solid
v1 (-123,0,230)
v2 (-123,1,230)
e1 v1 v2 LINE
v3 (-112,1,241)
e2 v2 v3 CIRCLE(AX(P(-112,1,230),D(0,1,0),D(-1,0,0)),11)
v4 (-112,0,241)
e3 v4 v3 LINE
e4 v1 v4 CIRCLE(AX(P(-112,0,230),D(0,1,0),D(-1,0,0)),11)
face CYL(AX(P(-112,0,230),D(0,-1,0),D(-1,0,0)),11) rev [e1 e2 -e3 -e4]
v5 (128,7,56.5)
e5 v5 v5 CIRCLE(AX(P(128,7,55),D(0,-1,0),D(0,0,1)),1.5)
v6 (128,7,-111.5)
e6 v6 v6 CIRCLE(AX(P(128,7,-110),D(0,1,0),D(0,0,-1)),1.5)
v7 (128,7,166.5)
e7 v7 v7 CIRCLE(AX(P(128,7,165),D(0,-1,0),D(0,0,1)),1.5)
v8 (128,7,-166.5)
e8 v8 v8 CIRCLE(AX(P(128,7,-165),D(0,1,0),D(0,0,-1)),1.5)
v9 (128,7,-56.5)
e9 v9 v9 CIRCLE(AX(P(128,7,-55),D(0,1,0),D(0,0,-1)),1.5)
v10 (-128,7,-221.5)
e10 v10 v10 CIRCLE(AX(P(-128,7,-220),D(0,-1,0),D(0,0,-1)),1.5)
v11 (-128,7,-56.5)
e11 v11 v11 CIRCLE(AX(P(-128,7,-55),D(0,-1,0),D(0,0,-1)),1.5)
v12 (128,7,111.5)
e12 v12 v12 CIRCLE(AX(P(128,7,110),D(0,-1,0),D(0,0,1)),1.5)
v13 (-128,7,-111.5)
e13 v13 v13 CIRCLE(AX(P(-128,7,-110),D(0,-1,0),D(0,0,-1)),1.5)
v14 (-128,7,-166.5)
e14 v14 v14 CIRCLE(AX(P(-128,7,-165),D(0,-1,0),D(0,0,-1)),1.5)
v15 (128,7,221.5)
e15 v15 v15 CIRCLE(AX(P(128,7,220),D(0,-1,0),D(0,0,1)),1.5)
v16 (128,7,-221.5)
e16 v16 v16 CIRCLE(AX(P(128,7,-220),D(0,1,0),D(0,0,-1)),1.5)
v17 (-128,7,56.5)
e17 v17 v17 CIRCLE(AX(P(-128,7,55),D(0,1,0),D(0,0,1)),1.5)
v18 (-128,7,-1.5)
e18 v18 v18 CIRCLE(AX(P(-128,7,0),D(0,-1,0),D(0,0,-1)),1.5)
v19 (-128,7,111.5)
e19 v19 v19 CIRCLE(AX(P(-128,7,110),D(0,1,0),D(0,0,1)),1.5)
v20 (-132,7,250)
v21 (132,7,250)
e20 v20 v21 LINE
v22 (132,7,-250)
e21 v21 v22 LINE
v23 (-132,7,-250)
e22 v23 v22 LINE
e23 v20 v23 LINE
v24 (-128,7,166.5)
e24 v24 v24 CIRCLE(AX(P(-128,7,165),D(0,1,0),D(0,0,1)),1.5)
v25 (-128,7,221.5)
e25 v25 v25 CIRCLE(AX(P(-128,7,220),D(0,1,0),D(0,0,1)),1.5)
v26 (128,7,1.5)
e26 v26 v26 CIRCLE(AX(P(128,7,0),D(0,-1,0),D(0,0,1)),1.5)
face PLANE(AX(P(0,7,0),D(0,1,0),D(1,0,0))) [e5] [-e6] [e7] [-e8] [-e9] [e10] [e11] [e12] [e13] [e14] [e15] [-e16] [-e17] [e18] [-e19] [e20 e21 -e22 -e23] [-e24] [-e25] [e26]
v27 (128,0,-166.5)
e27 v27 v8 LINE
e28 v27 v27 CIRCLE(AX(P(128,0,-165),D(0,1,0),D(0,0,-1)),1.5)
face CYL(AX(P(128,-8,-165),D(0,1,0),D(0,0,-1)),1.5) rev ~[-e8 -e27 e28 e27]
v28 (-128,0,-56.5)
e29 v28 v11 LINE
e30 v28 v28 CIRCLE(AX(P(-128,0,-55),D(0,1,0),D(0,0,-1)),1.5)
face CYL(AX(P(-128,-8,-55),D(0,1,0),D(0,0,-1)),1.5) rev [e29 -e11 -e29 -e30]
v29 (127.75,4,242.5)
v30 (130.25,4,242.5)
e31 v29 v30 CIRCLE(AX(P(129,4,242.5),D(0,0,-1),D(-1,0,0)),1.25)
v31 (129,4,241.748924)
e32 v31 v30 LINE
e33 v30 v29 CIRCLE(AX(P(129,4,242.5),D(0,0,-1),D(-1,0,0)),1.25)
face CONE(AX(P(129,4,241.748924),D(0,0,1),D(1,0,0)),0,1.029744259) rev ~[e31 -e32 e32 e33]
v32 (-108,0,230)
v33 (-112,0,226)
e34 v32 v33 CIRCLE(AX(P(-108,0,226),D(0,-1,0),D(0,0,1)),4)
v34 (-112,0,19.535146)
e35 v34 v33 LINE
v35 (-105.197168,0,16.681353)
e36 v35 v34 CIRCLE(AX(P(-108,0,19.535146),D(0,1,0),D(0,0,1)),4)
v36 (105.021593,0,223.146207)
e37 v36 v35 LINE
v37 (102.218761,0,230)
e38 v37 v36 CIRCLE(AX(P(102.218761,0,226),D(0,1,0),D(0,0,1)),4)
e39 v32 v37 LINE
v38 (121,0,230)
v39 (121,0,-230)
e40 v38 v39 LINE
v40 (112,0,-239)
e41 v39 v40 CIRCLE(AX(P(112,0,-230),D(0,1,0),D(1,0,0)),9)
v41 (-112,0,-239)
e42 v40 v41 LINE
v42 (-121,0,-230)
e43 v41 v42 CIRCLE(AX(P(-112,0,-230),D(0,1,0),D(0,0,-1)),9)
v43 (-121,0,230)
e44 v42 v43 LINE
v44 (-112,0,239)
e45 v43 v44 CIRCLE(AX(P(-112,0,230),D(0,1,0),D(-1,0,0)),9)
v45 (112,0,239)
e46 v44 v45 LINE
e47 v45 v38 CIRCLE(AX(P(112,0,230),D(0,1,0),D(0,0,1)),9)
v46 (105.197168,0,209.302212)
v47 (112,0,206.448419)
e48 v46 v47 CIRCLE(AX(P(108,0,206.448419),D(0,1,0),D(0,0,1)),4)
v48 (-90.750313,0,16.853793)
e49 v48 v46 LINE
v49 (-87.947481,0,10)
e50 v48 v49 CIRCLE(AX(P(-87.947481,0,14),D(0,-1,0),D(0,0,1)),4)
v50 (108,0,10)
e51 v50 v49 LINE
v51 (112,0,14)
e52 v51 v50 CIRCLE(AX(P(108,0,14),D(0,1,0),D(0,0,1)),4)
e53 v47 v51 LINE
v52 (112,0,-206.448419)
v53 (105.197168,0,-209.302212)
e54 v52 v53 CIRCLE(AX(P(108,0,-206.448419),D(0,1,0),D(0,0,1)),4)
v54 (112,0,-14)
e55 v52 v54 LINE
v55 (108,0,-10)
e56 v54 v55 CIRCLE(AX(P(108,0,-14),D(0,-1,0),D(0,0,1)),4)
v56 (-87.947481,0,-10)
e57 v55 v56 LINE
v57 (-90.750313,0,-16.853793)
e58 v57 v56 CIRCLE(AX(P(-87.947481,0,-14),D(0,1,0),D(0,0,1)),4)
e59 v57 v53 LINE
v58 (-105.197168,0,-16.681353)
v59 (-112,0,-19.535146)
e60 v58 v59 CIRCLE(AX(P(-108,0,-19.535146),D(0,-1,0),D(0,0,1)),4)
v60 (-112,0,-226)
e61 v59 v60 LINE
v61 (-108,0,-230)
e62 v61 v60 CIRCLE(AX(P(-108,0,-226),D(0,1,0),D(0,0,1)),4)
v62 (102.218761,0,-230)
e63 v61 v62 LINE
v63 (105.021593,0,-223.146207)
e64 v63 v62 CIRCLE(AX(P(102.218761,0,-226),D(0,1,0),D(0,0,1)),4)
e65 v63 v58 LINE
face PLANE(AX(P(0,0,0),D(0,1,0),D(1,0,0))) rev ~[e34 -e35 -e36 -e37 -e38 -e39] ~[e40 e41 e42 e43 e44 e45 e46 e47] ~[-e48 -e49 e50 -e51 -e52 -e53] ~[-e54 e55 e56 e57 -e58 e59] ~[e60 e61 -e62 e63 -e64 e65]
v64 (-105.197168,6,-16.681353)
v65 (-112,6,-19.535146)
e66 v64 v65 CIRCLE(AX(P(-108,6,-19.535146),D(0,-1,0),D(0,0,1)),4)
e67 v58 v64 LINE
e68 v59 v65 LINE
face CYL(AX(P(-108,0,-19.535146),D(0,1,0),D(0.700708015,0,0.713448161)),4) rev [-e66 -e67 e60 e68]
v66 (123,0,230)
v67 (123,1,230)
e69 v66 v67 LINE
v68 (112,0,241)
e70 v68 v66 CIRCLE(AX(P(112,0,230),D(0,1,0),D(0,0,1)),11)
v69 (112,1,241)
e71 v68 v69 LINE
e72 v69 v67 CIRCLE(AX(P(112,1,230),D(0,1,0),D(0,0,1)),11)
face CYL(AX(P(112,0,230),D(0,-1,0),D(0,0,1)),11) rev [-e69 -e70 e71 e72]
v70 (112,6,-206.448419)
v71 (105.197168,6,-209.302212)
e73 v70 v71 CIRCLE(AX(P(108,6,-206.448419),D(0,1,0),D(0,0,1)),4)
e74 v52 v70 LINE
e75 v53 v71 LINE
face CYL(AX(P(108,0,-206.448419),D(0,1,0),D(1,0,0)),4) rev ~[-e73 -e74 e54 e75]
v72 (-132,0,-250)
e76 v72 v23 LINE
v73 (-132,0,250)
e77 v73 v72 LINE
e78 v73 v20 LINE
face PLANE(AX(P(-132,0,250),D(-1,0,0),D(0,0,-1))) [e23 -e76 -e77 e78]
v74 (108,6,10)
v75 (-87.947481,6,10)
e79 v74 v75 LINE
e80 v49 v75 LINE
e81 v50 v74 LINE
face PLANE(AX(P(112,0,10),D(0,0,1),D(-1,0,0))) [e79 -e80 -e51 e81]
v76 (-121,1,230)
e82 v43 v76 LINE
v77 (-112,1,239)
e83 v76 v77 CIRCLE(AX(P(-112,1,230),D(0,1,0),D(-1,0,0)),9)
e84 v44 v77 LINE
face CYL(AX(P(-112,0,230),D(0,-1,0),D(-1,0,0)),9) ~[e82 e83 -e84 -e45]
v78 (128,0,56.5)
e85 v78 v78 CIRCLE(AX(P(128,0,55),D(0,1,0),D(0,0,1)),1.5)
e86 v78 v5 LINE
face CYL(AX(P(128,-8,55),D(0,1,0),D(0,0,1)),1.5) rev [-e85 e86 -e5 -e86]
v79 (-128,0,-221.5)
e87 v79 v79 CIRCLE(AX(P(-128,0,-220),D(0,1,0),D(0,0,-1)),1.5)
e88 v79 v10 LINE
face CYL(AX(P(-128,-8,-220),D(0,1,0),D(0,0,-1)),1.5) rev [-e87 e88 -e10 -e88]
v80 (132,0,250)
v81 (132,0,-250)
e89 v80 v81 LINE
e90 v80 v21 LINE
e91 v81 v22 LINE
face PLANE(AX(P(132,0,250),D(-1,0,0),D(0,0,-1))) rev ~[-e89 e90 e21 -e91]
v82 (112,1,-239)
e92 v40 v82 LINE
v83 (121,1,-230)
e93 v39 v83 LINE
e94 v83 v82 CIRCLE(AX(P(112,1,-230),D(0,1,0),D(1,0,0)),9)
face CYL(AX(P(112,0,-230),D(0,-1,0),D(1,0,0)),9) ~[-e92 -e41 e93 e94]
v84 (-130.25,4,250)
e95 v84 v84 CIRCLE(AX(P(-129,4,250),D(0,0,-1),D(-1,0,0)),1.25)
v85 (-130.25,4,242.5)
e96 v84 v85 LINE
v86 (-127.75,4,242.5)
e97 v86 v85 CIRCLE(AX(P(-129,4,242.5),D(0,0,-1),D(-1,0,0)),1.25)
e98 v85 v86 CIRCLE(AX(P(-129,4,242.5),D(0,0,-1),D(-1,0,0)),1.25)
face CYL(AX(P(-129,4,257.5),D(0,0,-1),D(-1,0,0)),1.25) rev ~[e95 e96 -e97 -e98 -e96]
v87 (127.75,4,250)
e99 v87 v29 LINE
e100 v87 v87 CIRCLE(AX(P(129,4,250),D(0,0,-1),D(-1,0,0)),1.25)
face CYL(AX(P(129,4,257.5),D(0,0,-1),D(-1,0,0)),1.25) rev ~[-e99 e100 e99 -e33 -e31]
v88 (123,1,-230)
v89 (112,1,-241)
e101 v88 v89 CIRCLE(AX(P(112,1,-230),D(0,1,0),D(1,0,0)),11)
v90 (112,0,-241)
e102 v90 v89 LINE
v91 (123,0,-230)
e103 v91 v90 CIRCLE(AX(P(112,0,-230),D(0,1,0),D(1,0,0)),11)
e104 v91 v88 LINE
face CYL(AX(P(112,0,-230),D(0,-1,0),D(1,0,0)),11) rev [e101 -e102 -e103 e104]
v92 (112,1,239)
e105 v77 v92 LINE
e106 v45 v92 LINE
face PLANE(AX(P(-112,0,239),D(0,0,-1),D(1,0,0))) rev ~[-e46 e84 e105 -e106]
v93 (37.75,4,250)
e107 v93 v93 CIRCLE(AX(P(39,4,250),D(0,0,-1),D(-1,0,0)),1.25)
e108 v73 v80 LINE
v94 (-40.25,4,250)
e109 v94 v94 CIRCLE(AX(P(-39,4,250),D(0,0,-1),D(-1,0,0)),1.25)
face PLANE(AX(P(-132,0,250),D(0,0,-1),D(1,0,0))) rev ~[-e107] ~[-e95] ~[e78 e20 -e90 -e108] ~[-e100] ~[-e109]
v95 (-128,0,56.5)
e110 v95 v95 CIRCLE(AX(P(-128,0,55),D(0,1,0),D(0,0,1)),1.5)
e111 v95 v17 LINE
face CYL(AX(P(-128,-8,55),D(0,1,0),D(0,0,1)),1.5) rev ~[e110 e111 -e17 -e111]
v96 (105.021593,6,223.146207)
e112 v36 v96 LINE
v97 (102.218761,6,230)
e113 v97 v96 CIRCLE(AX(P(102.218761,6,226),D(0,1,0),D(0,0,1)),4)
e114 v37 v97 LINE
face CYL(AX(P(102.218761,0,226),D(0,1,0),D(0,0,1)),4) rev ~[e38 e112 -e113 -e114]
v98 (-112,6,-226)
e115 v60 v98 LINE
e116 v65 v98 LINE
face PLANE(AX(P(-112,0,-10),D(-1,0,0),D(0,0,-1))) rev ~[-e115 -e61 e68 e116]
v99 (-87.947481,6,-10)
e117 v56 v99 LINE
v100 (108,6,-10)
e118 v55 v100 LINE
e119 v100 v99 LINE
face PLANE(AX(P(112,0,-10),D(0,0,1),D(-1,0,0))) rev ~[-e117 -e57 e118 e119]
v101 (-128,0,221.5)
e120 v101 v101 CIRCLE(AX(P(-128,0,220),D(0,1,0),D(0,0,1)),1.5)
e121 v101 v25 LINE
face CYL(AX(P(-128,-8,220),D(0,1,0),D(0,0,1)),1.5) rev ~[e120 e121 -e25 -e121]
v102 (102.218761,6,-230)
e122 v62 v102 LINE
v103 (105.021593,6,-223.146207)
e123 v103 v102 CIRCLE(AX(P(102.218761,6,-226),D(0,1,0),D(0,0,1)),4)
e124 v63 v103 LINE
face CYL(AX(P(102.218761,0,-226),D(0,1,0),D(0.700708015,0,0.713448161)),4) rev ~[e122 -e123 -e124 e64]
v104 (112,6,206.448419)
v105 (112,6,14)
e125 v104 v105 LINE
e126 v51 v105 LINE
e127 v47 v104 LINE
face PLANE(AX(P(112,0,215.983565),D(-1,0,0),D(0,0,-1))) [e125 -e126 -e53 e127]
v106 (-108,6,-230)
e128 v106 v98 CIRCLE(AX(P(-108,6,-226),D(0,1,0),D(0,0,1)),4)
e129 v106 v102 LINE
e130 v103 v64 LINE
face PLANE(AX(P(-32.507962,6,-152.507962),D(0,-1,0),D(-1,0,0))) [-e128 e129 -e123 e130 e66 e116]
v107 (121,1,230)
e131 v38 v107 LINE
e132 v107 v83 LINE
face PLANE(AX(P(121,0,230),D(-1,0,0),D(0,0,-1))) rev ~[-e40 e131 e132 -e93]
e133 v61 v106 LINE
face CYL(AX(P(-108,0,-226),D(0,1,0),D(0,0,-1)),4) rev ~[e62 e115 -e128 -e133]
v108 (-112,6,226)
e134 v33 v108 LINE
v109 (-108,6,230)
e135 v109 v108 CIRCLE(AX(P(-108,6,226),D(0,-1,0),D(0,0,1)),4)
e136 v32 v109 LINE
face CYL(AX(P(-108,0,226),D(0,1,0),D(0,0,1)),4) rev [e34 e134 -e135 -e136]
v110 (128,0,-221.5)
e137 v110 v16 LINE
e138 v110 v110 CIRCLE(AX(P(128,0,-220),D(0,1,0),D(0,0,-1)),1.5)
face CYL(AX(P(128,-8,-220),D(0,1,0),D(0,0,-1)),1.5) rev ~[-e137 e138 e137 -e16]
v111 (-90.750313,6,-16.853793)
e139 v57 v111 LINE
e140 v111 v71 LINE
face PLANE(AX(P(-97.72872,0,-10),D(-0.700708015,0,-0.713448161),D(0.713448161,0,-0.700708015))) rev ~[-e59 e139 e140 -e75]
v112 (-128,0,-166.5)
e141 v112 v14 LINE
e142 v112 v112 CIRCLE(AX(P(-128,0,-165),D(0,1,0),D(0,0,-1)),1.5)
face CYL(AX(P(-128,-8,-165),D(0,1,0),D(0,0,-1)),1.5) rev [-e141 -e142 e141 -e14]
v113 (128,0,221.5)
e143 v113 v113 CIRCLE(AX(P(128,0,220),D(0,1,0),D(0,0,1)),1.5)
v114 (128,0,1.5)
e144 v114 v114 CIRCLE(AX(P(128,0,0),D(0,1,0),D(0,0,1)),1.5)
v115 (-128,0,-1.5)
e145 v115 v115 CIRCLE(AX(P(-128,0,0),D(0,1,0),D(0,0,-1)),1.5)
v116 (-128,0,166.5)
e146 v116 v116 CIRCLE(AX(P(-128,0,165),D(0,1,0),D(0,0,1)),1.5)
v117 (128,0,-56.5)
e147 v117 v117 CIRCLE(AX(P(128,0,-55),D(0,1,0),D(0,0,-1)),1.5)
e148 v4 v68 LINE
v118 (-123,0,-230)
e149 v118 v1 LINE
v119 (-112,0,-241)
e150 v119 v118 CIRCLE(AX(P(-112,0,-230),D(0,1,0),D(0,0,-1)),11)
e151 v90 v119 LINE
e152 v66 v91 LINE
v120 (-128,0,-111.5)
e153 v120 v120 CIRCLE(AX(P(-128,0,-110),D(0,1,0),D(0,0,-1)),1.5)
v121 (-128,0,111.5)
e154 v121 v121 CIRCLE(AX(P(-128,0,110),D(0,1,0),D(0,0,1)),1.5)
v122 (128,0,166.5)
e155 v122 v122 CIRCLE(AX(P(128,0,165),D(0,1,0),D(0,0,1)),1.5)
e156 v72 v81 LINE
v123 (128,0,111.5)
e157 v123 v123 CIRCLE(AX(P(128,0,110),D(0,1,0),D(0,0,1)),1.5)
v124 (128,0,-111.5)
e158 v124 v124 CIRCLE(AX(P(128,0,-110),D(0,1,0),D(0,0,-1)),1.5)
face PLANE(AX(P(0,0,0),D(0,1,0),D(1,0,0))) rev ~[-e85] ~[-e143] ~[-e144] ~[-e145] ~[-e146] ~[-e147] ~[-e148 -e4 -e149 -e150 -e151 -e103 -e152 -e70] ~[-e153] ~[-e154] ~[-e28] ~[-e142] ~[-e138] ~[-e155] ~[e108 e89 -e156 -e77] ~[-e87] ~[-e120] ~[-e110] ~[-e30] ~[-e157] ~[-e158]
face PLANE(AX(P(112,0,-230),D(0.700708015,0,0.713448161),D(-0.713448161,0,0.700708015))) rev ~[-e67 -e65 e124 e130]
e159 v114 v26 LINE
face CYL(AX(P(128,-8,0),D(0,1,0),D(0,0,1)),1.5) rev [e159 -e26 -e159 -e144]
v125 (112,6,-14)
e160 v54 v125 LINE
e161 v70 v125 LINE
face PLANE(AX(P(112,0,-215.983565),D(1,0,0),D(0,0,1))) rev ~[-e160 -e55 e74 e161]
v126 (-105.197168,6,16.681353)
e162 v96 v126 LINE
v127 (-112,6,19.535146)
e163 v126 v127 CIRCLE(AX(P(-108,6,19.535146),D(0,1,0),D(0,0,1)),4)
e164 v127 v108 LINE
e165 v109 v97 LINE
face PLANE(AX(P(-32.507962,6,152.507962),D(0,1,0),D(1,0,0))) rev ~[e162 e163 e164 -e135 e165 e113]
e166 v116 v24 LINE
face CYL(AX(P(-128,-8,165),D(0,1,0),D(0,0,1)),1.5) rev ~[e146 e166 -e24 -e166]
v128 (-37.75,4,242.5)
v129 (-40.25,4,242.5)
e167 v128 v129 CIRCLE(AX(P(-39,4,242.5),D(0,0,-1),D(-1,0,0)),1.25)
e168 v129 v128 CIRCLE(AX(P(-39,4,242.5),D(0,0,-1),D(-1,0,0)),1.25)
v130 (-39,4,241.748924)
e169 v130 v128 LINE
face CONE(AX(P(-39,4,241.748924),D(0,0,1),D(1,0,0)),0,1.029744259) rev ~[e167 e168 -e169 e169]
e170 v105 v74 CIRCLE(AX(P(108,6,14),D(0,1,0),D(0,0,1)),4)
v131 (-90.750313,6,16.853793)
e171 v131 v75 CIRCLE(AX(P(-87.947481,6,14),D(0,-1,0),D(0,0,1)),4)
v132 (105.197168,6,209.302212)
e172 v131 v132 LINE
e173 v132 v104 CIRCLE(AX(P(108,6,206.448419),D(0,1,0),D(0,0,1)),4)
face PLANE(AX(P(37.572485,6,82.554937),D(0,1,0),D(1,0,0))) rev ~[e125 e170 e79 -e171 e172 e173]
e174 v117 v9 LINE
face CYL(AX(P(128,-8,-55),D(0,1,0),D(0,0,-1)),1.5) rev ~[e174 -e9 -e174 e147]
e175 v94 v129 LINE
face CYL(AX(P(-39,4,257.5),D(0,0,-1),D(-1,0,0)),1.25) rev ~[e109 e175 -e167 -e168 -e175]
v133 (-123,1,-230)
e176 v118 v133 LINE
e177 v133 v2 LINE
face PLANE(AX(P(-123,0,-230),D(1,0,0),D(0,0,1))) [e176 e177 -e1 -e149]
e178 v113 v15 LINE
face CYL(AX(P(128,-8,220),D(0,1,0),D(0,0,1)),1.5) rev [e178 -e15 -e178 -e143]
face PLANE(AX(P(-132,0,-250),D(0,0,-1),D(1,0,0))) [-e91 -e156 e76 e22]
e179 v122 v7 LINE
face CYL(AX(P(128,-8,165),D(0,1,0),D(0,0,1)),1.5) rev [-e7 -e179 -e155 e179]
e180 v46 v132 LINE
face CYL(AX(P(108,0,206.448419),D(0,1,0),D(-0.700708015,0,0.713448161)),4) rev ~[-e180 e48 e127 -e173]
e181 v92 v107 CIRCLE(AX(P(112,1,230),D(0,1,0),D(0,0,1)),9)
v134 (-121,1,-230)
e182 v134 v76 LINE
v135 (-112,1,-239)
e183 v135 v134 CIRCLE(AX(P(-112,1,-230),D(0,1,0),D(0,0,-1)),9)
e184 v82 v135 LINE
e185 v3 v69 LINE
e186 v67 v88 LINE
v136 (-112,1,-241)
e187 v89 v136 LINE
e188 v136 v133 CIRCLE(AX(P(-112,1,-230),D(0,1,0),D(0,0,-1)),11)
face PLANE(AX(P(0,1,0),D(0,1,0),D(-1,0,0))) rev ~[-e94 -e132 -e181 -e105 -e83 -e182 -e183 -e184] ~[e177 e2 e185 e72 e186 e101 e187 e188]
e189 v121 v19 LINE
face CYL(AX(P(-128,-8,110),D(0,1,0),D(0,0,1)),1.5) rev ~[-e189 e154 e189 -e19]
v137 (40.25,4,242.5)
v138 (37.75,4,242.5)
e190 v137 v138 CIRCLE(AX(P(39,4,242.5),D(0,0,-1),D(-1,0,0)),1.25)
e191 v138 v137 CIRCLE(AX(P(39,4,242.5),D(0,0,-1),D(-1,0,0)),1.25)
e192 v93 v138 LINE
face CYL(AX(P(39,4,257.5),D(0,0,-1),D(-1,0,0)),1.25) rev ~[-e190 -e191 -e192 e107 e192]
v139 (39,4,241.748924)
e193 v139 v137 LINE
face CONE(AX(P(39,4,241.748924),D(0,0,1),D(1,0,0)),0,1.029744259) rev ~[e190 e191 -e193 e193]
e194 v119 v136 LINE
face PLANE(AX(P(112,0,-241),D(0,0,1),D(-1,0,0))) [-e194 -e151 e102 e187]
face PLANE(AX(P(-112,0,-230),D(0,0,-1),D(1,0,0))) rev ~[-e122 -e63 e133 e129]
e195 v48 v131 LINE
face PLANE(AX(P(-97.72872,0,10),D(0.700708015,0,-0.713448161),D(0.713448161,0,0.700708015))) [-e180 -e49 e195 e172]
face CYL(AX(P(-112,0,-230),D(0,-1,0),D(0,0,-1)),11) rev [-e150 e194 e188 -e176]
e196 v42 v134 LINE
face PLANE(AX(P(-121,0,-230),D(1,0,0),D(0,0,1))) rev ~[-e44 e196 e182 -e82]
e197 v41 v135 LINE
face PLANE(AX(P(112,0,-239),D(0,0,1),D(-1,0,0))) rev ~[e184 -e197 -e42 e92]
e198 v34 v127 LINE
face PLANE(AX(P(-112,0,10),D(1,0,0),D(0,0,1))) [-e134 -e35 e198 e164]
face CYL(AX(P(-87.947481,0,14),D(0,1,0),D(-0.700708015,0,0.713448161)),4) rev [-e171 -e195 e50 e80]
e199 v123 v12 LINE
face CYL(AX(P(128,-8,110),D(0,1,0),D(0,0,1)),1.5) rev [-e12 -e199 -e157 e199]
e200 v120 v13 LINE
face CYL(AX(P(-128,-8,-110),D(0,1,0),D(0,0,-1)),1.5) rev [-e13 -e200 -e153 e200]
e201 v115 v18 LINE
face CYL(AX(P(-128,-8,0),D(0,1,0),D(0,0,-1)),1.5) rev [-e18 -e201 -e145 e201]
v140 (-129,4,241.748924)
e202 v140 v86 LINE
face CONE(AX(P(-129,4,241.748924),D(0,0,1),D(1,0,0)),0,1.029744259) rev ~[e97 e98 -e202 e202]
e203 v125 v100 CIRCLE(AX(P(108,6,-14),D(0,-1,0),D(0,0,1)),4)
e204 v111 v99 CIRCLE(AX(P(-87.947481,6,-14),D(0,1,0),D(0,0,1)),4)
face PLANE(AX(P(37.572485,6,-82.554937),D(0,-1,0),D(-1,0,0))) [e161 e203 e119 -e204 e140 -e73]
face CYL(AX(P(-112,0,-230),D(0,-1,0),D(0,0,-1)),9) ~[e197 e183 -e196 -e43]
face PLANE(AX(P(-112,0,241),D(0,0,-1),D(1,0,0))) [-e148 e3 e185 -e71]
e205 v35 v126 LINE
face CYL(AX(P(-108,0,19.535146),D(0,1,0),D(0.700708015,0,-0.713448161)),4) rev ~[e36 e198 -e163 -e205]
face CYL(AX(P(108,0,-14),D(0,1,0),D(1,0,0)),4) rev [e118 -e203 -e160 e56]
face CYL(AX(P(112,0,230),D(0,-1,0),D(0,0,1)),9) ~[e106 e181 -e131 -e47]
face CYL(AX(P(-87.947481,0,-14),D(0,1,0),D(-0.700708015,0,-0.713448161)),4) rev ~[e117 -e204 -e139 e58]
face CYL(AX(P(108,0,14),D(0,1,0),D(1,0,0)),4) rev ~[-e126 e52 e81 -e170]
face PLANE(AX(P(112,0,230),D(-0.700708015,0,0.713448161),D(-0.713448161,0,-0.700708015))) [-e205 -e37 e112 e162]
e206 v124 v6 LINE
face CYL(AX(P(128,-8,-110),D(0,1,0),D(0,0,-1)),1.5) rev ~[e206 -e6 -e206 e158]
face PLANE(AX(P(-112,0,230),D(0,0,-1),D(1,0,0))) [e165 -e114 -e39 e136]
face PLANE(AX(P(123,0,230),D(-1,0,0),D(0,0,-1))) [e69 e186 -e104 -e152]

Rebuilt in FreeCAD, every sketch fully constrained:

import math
import FreeCAD as App
import Part
import Sketcher
Q = App.Units.Quantity


def edges_at(feature, points):
    """Names of the edges that pass closest to the given points."""
    edges = feature.Shape.Edges
    near = lambda p: min(range(len(edges)), key=lambda i: edges[i].distToShape(Part.Vertex(*p))[0])
    return sorted({f"Edge{near(p) + 1}" for p in points})


def add_polygon(sketch, points):
    """Adds a closed chain of lines whose ends are joined by coincident constraints."""
    first, n = sketch.GeometryCount, len(points)
    for a, b in zip(points, points[1:] + points[:1]):
        sketch.addGeometry(Part.LineSegment(App.Vector(*a, 0), App.Vector(*b, 0)), False)
    for i in range(n):
        sketch.addConstraint(Sketcher.Constraint("Coincident", first + i, 2, first + (i + 1) % n, 1))

doc = App.newDocument("Part")
body = doc.addObject("PartDesign::Body", "Body")

sketch1 = doc.addObject("Sketcher::SketchObject", "Sketch")
body.addObject(sketch1)
sketch1.AttachmentSupport = (doc.XZ_Plane, [""])
sketch1.MapMode = "FlatFace"
add_polygon(sketch1, [(-132, -250), (-132, 250), (132, 250), (132, -250)])
sketch1.addConstraint([
    Sketcher.Constraint("Vertical", 0),
    Sketcher.Constraint("Horizontal", 1),
    Sketcher.Constraint("Vertical", 2),
    Sketcher.Constraint("Horizontal", 3),
    Sketcher.Constraint("Symmetric", 0, 2, 2, 2, -1, 1),
    Sketcher.Constraint("DistanceX", 1, 1, 1, 2, Q("264 mm")),
    Sketcher.Constraint("DistanceY", 0, 1, 0, 2, Q("500 mm")),
])
pad1 = doc.addObject("PartDesign::Pad", "Pad")
body.addObject(pad1)
pad1.Profile = sketch1
pad1.Length = 7
pad1.Reversed = True

sketch2 = doc.addObject("Sketcher::SketchObject", "Sketch001")
body.addObject(sketch2)
sketch2.AttachmentSupport = (doc.XZ_Plane, [""])
sketch2.MapMode = "FlatFace"
sketch2.addGeometry([
    Part.LineSegment(App.Vector(123, -230, 0), App.Vector(123, 230, 0)),
    Part.ArcOfCircle(Part.Circle(App.Vector(112, 230, 0), App.Vector(0, 0, 1), 11), math.radians(0), math.radians(90)),
    Part.LineSegment(App.Vector(112, 241, 0), App.Vector(-112, 241, 0)),
    Part.ArcOfCircle(Part.Circle(App.Vector(-112, 230, 0), App.Vector(0, 0, 1), 11), math.radians(90), math.radians(180)),
    Part.LineSegment(App.Vector(-123, 230, 0), App.Vector(-123, -230, 0)),
    Part.ArcOfCircle(Part.Circle(App.Vector(-112, -230, 0), App.Vector(0, 0, 1), 11), math.radians(180), math.radians(270)),
    Part.LineSegment(App.Vector(-112, -241, 0), App.Vector(112, -241, 0)),
    Part.ArcOfCircle(Part.Circle(App.Vector(112, -230, 0), App.Vector(0, 0, 1), 11), math.radians(-90), math.radians(0)),
    Part.LineSegment(App.Vector(121, 230, 0), App.Vector(121, -230, 0)),
    Part.ArcOfCircle(Part.Circle(App.Vector(112, -230, 0), App.Vector(0, 0, 1), 9), math.radians(-90), math.radians(0)),
    Part.LineSegment(App.Vector(112, -239, 0), App.Vector(-112, -239, 0)),
    Part.ArcOfCircle(Part.Circle(App.Vector(-112, -230, 0), App.Vector(0, 0, 1), 9), math.radians(180), math.radians(270)),
    Part.LineSegment(App.Vector(-121, -230, 0), App.Vector(-121, 230, 0)),
    Part.ArcOfCircle(Part.Circle(App.Vector(-112, 230, 0), App.Vector(0, 0, 1), 9), math.radians(90), math.radians(180)),
    Part.LineSegment(App.Vector(-112, 239, 0), App.Vector(112, 239, 0)),
    Part.ArcOfCircle(Part.Circle(App.Vector(112, 230, 0), App.Vector(0, 0, 1), 9), math.radians(0), math.radians(90)),
], False)
sketch2.addConstraint([
    Sketcher.Constraint("Tangent", 0, 2, 1, 1),
    Sketcher.Constraint("Tangent", 1, 2, 2, 1),
    Sketcher.Constraint("Tangent", 2, 2, 3, 1),
    Sketcher.Constraint("Tangent", 3, 2, 4, 1),
    Sketcher.Constraint("Tangent", 4, 2, 5, 1),
    Sketcher.Constraint("Tangent", 5, 2, 6, 1),
    Sketcher.Constraint("Tangent", 6, 2, 7, 1),
    Sketcher.Constraint("Tangent", 7, 2, 0, 1),
    Sketcher.Constraint("Tangent", 8, 2, 9, 2),
    Sketcher.Constraint("Tangent", 9, 1, 10, 1),
    Sketcher.Constraint("Tangent", 10, 2, 11, 2),
    Sketcher.Constraint("Tangent", 11, 1, 12, 1),
    Sketcher.Constraint("Tangent", 12, 2, 13, 2),
    Sketcher.Constraint("Tangent", 13, 1, 14, 1),
    Sketcher.Constraint("Tangent", 14, 2, 15, 2),
    Sketcher.Constraint("Tangent", 15, 1, 8, 1),
    Sketcher.Constraint("Vertical", 0),
    Sketcher.Constraint("Horizontal", 2),
    Sketcher.Constraint("Vertical", 4),
    Sketcher.Constraint("Horizontal", 6),
    Sketcher.Constraint("Vertical", 8),
    Sketcher.Constraint("Horizontal", 10),
    Sketcher.Constraint("Vertical", 12),
    Sketcher.Constraint("Horizontal", 14),
    Sketcher.Constraint("Coincident", 9, 3, 7, 3),
    Sketcher.Constraint("Coincident", 11, 3, 5, 3),
    Sketcher.Constraint("Coincident", 13, 3, 3, 3),
    Sketcher.Constraint("Equal", 1, 3),
    Sketcher.Constraint("Equal", 3, 5),
    Sketcher.Constraint("Equal", 5, 7),
    Sketcher.Constraint("Equal", 13, 15),
    Sketcher.Constraint("Symmetric", 1, 3, 5, 3, -1, 1),
    Sketcher.Constraint("Radius", 1, Q("11 mm")),
    Sketcher.Constraint("Radius", 9, Q("9 mm")),
    Sketcher.Constraint("DistanceX", 2, 2, 2, 1, Q("224 mm")),
    Sketcher.Constraint("DistanceY", 0, 1, 0, 2, Q("460 mm")),
])
pocket1 = doc.addObject("PartDesign::Pocket", "Pocket")
body.addObject(pocket1)
pocket1.Profile = sketch2
pocket1.Length = 1

sketch3 = doc.addObject("Sketcher::SketchObject", "Sketch002")
body.addObject(sketch3)
sketch3.AttachmentSupport = (doc.YZ_Plane, [""])
sketch3.MapMode = "FlatFace"
sketch3.AttachmentOffset = App.Placement(App.Vector(0, 0, 128), App.Rotation())
add_polygon(sketch3, [(-8.901291, 220), (7, 220), (7, 221.5), (-8, 221.5)])
sketch3.addGeometry(Part.LineSegment(App.Vector(7, 220, 0), App.Vector(-8.901291, 220, 0)), True)
sketch3.addConstraint([
    Sketcher.Constraint("Horizontal", 0),
    Sketcher.Constraint("Vertical", 1),
    Sketcher.Constraint("Horizontal", 2),
    Sketcher.Constraint("Horizontal", 4),
    Sketcher.Constraint("Coincident", 4, 1, 0, 2),
    Sketcher.Constraint("Equal", 0, 4),
    Sketcher.Constraint("DistanceX", 2, 2, 2, 1, Q("15 mm")),
    Sketcher.Constraint("Angle", 3, Q("-121 deg")),
    Sketcher.Constraint("DistanceY", 1, 1, 1, 2, Q("1.5 mm")),
    Sketcher.Constraint("DistanceX", -1, 1, 0, 2, Q("7 mm")),
    Sketcher.Constraint("DistanceY", -1, 1, 0, 2, Q("220 mm")),
])
groove = doc.addObject("PartDesign::Groove", "Groove")
body.addObject(groove)
groove.Profile = sketch3
groove.ReferenceAxis = (sketch3, ["Axis0"])
groove.Angle = 360
doc.recompute()

linearpattern = doc.addObject("PartDesign::LinearPattern", "LinearPattern")
body.addObject(linearpattern)
linearpattern.Originals = [groove]
linearpattern.Direction = (doc.Z_Axis, [""])
linearpattern.Mode = "offset"
linearpattern.Offset = 55
linearpattern.Occurrences = 2
linearpattern.Reversed = True
body.Tip = linearpattern
doc.recompute()

linearpattern2 = doc.addObject("PartDesign::LinearPattern", "LinearPattern001")
body.addObject(linearpattern2)
linearpattern2.Originals = [groove]
linearpattern2.Direction = (doc.Z_Axis, [""])
linearpattern2.Mode = "offset"
linearpattern2.Offset = 110
linearpattern2.Occurrences = 2
linearpattern2.Reversed = True
body.Tip = linearpattern2
doc.recompute()

linearpattern3 = doc.addObject("PartDesign::LinearPattern", "LinearPattern002")
body.addObject(linearpattern3)
linearpattern3.Originals = [groove]
linearpattern3.Direction = (doc.Z_Axis, [""])
linearpattern3.Mode = "offset"
linearpattern3.Offset = 165
linearpattern3.Occurrences = 2
linearpattern3.Reversed = True
body.Tip = linearpattern3
doc.recompute()

linearpattern4 = doc.addObject("PartDesign::LinearPattern", "LinearPattern003")
body.addObject(linearpattern4)
linearpattern4.Originals = [groove]
linearpattern4.Direction = (doc.Z_Axis, [""])
linearpattern4.Mode = "offset"
linearpattern4.Offset = 220
linearpattern4.Occurrences = 2
linearpattern4.Reversed = True
body.Tip = linearpattern4
doc.recompute()

mirrored = doc.addObject("PartDesign::Mirrored", "Mirrored")
body.addObject(mirrored)
mirrored.Originals = [groove]
mirrored.MirrorPlane = (doc.XY_Plane, [""])
body.Tip = mirrored

sketch4 = doc.addObject("Sketcher::SketchObject", "Sketch003")
body.addObject(sketch4)
sketch4.AttachmentSupport = (doc.YZ_Plane, [""])
sketch4.MapMode = "FlatFace"
sketch4.AttachmentOffset = App.Placement(App.Vector(0, 0, 128), App.Rotation())
add_polygon(sketch4, [(7, -165), (-8.901291, -165), (-8, -166.5), (7, -166.5)])
sketch4.addGeometry(Part.LineSegment(App.Vector(-8.901291, -165, 0), App.Vector(7, -165, 0)), True)
sketch4.addConstraint([
    Sketcher.Constraint("Horizontal", 0),
    Sketcher.Constraint("Horizontal", 2),
    Sketcher.Constraint("Vertical", 3),
    Sketcher.Constraint("Horizontal", 4),
    Sketcher.Constraint("Coincident", 4, 1, 0, 2),
    Sketcher.Constraint("Vertical", 2, 2, 4, 2),
    Sketcher.Constraint("DistanceX", 2, 1, 2, 2, Q("15 mm")),
    Sketcher.Constraint("Angle", 1, Q("-59 deg")),
    Sketcher.Constraint("DistanceY", 3, 1, 3, 2, Q("1.5 mm")),
    Sketcher.Constraint("DistanceY", 0, 2, -1, 1, Q("165 mm")),
    Sketcher.Constraint("DistanceX", 1, 2, -1, 1, Q("8 mm")),
])
groove2 = doc.addObject("PartDesign::Groove", "Groove001")
body.addObject(groove2)
groove2.Profile = sketch4
groove2.ReferenceAxis = (sketch4, ["Axis0"])
groove2.Angle = 360

sketch5 = doc.addObject("Sketcher::SketchObject", "Sketch004")
body.addObject(sketch5)
sketch5.AttachmentSupport = (doc.YZ_Plane, [""])
sketch5.MapMode = "FlatFace"
sketch5.AttachmentOffset = App.Placement(App.Vector(0, 0, 128), App.Rotation())
add_polygon(sketch5, [(7, -110), (-8.901291, -110), (-8, -111.5), (7, -111.5)])
sketch5.addGeometry(Part.LineSegment(App.Vector(-8.901291, -110, 0), App.Vector(7, -110, 0)), True)
sketch5.addConstraint([
    Sketcher.Constraint("Horizontal", 0),
    Sketcher.Constraint("Horizontal", 2),
    Sketcher.Constraint("Vertical", 3),
    Sketcher.Constraint("Horizontal", 4),
    Sketcher.Constraint("Coincident", 4, 1, 0, 2),
    Sketcher.Constraint("Vertical", 2, 2, 4, 2),
    Sketcher.Constraint("DistanceX", 2, 1, 2, 2, Q("15 mm")),
    Sketcher.Constraint("Angle", 1, Q("-59 deg")),
    Sketcher.Constraint("DistanceY", 3, 1, 3, 2, Q("1.5 mm")),
    Sketcher.Constraint("DistanceY", 0, 2, -1, 1, Q("110 mm")),
    Sketcher.Constraint("DistanceX", 1, 2, -1, 1, Q("8 mm")),
])
groove3 = doc.addObject("PartDesign::Groove", "Groove002")
body.addObject(groove3)
groove3.Profile = sketch5
groove3.ReferenceAxis = (sketch5, ["Axis0"])
groove3.Angle = 360

sketch6 = doc.addObject("Sketcher::SketchObject", "Sketch005")
body.addObject(sketch6)
sketch6.AttachmentSupport = (doc.YZ_Plane, [""])
sketch6.MapMode = "FlatFace"
sketch6.AttachmentOffset = App.Placement(App.Vector(0, 0, 128), App.Rotation())
add_polygon(sketch6, [(7, -55), (-8.901291, -55), (-8, -56.5), (7, -56.5)])
sketch6.addGeometry(Part.LineSegment(App.Vector(-8.901291, -55, 0), App.Vector(7, -55, 0)), True)
sketch6.addConstraint([
    Sketcher.Constraint("Horizontal", 0),
    Sketcher.Constraint("Horizontal", 2),
    Sketcher.Constraint("Vertical", 3),
    Sketcher.Constraint("Horizontal", 4),
    Sketcher.Constraint("Coincident", 4, 1, 0, 2),
    Sketcher.Constraint("Vertical", 2, 2, 4, 2),
    Sketcher.Constraint("DistanceX", 2, 1, 2, 2, Q("15 mm")),
    Sketcher.Constraint("Angle", 1, Q("-59 deg")),
    Sketcher.Constraint("DistanceY", 3, 1, 3, 2, Q("1.5 mm")),
    Sketcher.Constraint("DistanceY", 0, 2, -1, 1, Q("55 mm")),
    Sketcher.Constraint("DistanceX", 1, 2, -1, 1, Q("8 mm")),
])
groove4 = doc.addObject("PartDesign::Groove", "Groove003")
body.addObject(groove4)
groove4.Profile = sketch6
groove4.ReferenceAxis = (sketch6, ["Axis0"])
groove4.Angle = 360

sketch7 = doc.addObject("Sketcher::SketchObject", "Sketch006")
body.addObject(sketch7)
sketch7.AttachmentSupport = (doc.YZ_Plane, [""])
sketch7.MapMode = "FlatFace"
sketch7.AttachmentOffset = App.Placement(App.Vector(0, 0, 128), App.Rotation())
add_polygon(sketch7, [(7, 0), (-8.901291, 0), (-8, -1.5), (7, -1.5)])
sketch7.addConstraint([
    Sketcher.Constraint("Horizontal", 0),
    Sketcher.Constraint("Horizontal", 2),
    Sketcher.Constraint("Vertical", 3),
    Sketcher.Constraint("PointOnObject", 0, 2, -1),
    Sketcher.Constraint("DistanceX", 2, 1, 2, 2, Q("15 mm")),
    Sketcher.Constraint("Angle", 1, Q("-59 deg")),
    Sketcher.Constraint("DistanceY", 3, 1, 3, 2, Q("1.5 mm")),
    Sketcher.Constraint("DistanceX", 1, 2, -1, 1, Q("8 mm")),
])
groove5 = doc.addObject("PartDesign::Groove", "Groove004")
body.addObject(groove5)
groove5.Profile = sketch7
groove5.ReferenceAxis = (sketch7, ["H_Axis"])
groove5.Angle = 360
doc.recompute()

mirrored2 = doc.addObject("PartDesign::Mirrored", "Mirrored001")
body.addObject(mirrored2)
mirrored2.Originals = [groove]
mirrored2.MirrorPlane = (doc.YZ_Plane, [""])
body.Tip = mirrored2

sketch8 = doc.addObject("Sketcher::SketchObject", "Sketch007")
body.addObject(sketch8)
sketch8.AttachmentSupport = (doc.YZ_Plane, [""])
sketch8.MapMode = "FlatFace"
sketch8.AttachmentOffset = App.Placement(App.Vector(0, 0, -128), App.Rotation())
add_polygon(sketch8, [(-8.901291, -220), (7, -220), (7, -221.5), (-8, -221.5)])
sketch8.addGeometry(Part.LineSegment(App.Vector(7, -220, 0), App.Vector(-8.901291, -220, 0)), True)
sketch8.addConstraint([
    Sketcher.Constraint("Horizontal", 0),
    Sketcher.Constraint("Vertical", 1),
    Sketcher.Constraint("Horizontal", 2),
    Sketcher.Constraint("Horizontal", 4),
    Sketcher.Constraint("Coincident", 4, 1, 0, 2),
    Sketcher.Constraint("Equal", 0, 4),
    Sketcher.Constraint("DistanceX", 2, 2, 2, 1, Q("15 mm")),
    Sketcher.Constraint("Angle", 3, Q("121 deg")),
    Sketcher.Constraint("DistanceY", 1, 2, 1, 1, Q("1.5 mm")),
    Sketcher.Constraint("DistanceX", -1, 1, 0, 2, Q("7 mm")),
    Sketcher.Constraint("DistanceY", 0, 2, -1, 1, Q("220 mm")),
])
groove6 = doc.addObject("PartDesign::Groove", "Groove005")
body.addObject(groove6)
groove6.Profile = sketch8
groove6.ReferenceAxis = (sketch8, ["Axis0"])
groove6.Angle = 360

sketch9 = doc.addObject("Sketcher::SketchObject", "Sketch008")
body.addObject(sketch9)
sketch9.AttachmentSupport = (doc.YZ_Plane, [""])
sketch9.MapMode = "FlatFace"
sketch9.AttachmentOffset = App.Placement(App.Vector(0, 0, -128), App.Rotation())
add_polygon(sketch9, [(-8.901291, -165), (7, -165), (7, -166.5), (-8, -166.5)])
sketch9.addGeometry(Part.LineSegment(App.Vector(7, -165, 0), App.Vector(-8.901291, -165, 0)), True)
sketch9.addConstraint([
    Sketcher.Constraint("Horizontal", 0),
    Sketcher.Constraint("Vertical", 1),
    Sketcher.Constraint("Horizontal", 2),
    Sketcher.Constraint("Horizontal", 4),
    Sketcher.Constraint("Coincident", 4, 1, 0, 2),
    Sketcher.Constraint("Equal", 0, 4),
    Sketcher.Constraint("DistanceX", 2, 2, 2, 1, Q("15 mm")),
    Sketcher.Constraint("Angle", 3, Q("121 deg")),
    Sketcher.Constraint("DistanceY", 1, 2, 1, 1, Q("1.5 mm")),
    Sketcher.Constraint("DistanceX", -1, 1, 0, 2, Q("7 mm")),
    Sketcher.Constraint("DistanceY", 0, 2, -1, 1, Q("165 mm")),
])
groove7 = doc.addObject("PartDesign::Groove", "Groove006")
body.addObject(groove7)
groove7.Profile = sketch9
groove7.ReferenceAxis = (sketch9, ["Axis0"])
groove7.Angle = 360

sketch10 = doc.addObject("Sketcher::SketchObject", "Sketch009")
body.addObject(sketch10)
sketch10.AttachmentSupport = (doc.YZ_Plane, [""])
sketch10.MapMode = "FlatFace"
sketch10.AttachmentOffset = App.Placement(App.Vector(0, 0, -128), App.Rotation())
add_polygon(sketch10, [(-8.901291, -110), (7, -110), (7, -111.5), (-8, -111.5)])
sketch10.addGeometry(Part.LineSegment(App.Vector(7, -110, 0), App.Vector(-8.901291, -110, 0)), True)
sketch10.addConstraint([
    Sketcher.Constraint("Horizontal", 0),
    Sketcher.Constraint("Vertical", 1),
    Sketcher.Constraint("Horizontal", 2),
    Sketcher.Constraint("Horizontal", 4),
    Sketcher.Constraint("Coincident", 4, 1, 0, 2),
    Sketcher.Constraint("Equal", 0, 4),
    Sketcher.Constraint("DistanceX", 2, 2, 2, 1, Q("15 mm")),
    Sketcher.Constraint("Angle", 3, Q("121 deg")),
    Sketcher.Constraint("DistanceY", 1, 2, 1, 1, Q("1.5 mm")),
    Sketcher.Constraint("DistanceX", -1, 1, 0, 2, Q("7 mm")),
    Sketcher.Constraint("DistanceY", 0, 2, -1, 1, Q("110 mm")),
])
groove8 = doc.addObject("PartDesign::Groove", "Groove007")
body.addObject(groove8)
groove8.Profile = sketch10
groove8.ReferenceAxis = (sketch10, ["Axis0"])
groove8.Angle = 360

sketch11 = doc.addObject("Sketcher::SketchObject", "Sketch010")
body.addObject(sketch11)
sketch11.AttachmentSupport = (doc.YZ_Plane, [""])
sketch11.MapMode = "FlatFace"
sketch11.AttachmentOffset = App.Placement(App.Vector(0, 0, -128), App.Rotation())
add_polygon(sketch11, [(-8.901291, -55), (7, -55), (7, -56.5), (-8, -56.5)])
sketch11.addGeometry(Part.LineSegment(App.Vector(7, -55, 0), App.Vector(-8.901291, -55, 0)), True)
sketch11.addConstraint([
    Sketcher.Constraint("Horizontal", 0),
    Sketcher.Constraint("Vertical", 1),
    Sketcher.Constraint("Horizontal", 2),
    Sketcher.Constraint("Horizontal", 4),
    Sketcher.Constraint("Coincident", 4, 1, 0, 2),
    Sketcher.Constraint("Equal", 0, 4),
    Sketcher.Constraint("DistanceX", 2, 2, 2, 1, Q("15 mm")),
    Sketcher.Constraint("Angle", 3, Q("121 deg")),
    Sketcher.Constraint("DistanceY", 1, 2, 1, 1, Q("1.5 mm")),
    Sketcher.Constraint("DistanceX", -1, 1, 0, 2, Q("7 mm")),
    Sketcher.Constraint("DistanceY", 0, 2, -1, 1, Q("55 mm")),
])
groove9 = doc.addObject("PartDesign::Groove", "Groove008")
body.addObject(groove9)
groove9.Profile = sketch11
groove9.ReferenceAxis = (sketch11, ["Axis0"])
groove9.Angle = 360

sketch12 = doc.addObject("Sketcher::SketchObject", "Sketch011")
body.addObject(sketch12)
sketch12.AttachmentSupport = (doc.YZ_Plane, [""])
sketch12.MapMode = "FlatFace"
sketch12.AttachmentOffset = App.Placement(App.Vector(0, 0, -128), App.Rotation())
add_polygon(sketch12, [(-8.901291, 0), (7, 0), (7, -1.5), (-8, -1.5)])
sketch12.addConstraint([
    Sketcher.Constraint("Horizontal", 0),
    Sketcher.Constraint("Vertical", 1),
    Sketcher.Constraint("Horizontal", 2),
    Sketcher.Constraint("PointOnObject", 0, 2, -1),
    Sketcher.Constraint("DistanceX", 2, 2, 2, 1, Q("15 mm")),
    Sketcher.Constraint("Angle", 3, Q("121 deg")),
    Sketcher.Constraint("DistanceY", 1, 2, 1, 1, Q("1.5 mm")),
    Sketcher.Constraint("DistanceX", -1, 1, 0, 2, Q("7 mm")),
])
groove10 = doc.addObject("PartDesign::Groove", "Groove009")
body.addObject(groove10)
groove10.Profile = sketch12
groove10.ReferenceAxis = (sketch12, ["H_Axis"])
groove10.Angle = 360

sketch13 = doc.addObject("Sketcher::SketchObject", "Sketch012")
body.addObject(sketch13)
sketch13.AttachmentSupport = (doc.YZ_Plane, [""])
sketch13.MapMode = "FlatFace"
sketch13.AttachmentOffset = App.Placement(App.Vector(0, 0, -128), App.Rotation())
add_polygon(sketch13, [(7, 165), (-8.901291, 165), (-8, 166.5), (7, 166.5)])
sketch13.addGeometry(Part.LineSegment(App.Vector(-8.901291, 165, 0), App.Vector(7, 165, 0)), True)
sketch13.addConstraint([
    Sketcher.Constraint("Horizontal", 0),
    Sketcher.Constraint("Horizontal", 2),
    Sketcher.Constraint("Vertical", 3),
    Sketcher.Constraint("Horizontal", 4),
    Sketcher.Constraint("Coincident", 4, 1, 0, 2),
    Sketcher.Constraint("Vertical", 2, 2, 4, 2),
    Sketcher.Constraint("DistanceX", 2, 1, 2, 2, Q("15 mm")),
    Sketcher.Constraint("Angle", 1, Q("59 deg")),
    Sketcher.Constraint("DistanceY", 3, 2, 3, 1, Q("1.5 mm")),
    Sketcher.Constraint("DistanceY", -1, 1, 0, 2, Q("165 mm")),
    Sketcher.Constraint("DistanceX", 1, 2, -1, 1, Q("8 mm")),
])
groove11 = doc.addObject("PartDesign::Groove", "Groove010")
body.addObject(groove11)
groove11.Profile = sketch13
groove11.ReferenceAxis = (sketch13, ["Axis0"])
groove11.Angle = 360

sketch14 = doc.addObject("Sketcher::SketchObject", "Sketch013")
body.addObject(sketch14)
sketch14.AttachmentSupport = (doc.YZ_Plane, [""])
sketch14.MapMode = "FlatFace"
sketch14.AttachmentOffset = App.Placement(App.Vector(0, 0, -128), App.Rotation())
add_polygon(sketch14, [(7, 110), (-8.901291, 110), (-8, 111.5), (7, 111.5)])
sketch14.addGeometry(Part.LineSegment(App.Vector(-8.901291, 110, 0), App.Vector(7, 110, 0)), True)
sketch14.addConstraint([
    Sketcher.Constraint("Horizontal", 0),
    Sketcher.Constraint("Horizontal", 2),
    Sketcher.Constraint("Vertical", 3),
    Sketcher.Constraint("Horizontal", 4),
    Sketcher.Constraint("Coincident", 4, 1, 0, 2),
    Sketcher.Constraint("Vertical", 2, 2, 4, 2),
    Sketcher.Constraint("DistanceX", 2, 1, 2, 2, Q("15 mm")),
    Sketcher.Constraint("Angle", 1, Q("59 deg")),
    Sketcher.Constraint("DistanceY", 3, 2, 3, 1, Q("1.5 mm")),
    Sketcher.Constraint("DistanceY", -1, 1, 0, 2, Q("110 mm")),
    Sketcher.Constraint("DistanceX", 1, 2, -1, 1, Q("8 mm")),
])
groove12 = doc.addObject("PartDesign::Groove", "Groove011")
body.addObject(groove12)
groove12.Profile = sketch14
groove12.ReferenceAxis = (sketch14, ["Axis0"])
groove12.Angle = 360

sketch15 = doc.addObject("Sketcher::SketchObject", "Sketch014")
body.addObject(sketch15)
sketch15.AttachmentSupport = (doc.YZ_Plane, [""])
sketch15.MapMode = "FlatFace"
sketch15.AttachmentOffset = App.Placement(App.Vector(0, 0, -128), App.Rotation())
add_polygon(sketch15, [(7, 55), (-8.901291, 55), (-8, 56.5), (7, 56.5)])
sketch15.addGeometry(Part.LineSegment(App.Vector(-8.901291, 55, 0), App.Vector(7, 55, 0)), True)
sketch15.addConstraint([
    Sketcher.Constraint("Horizontal", 0),
    Sketcher.Constraint("Horizontal", 2),
    Sketcher.Constraint("Vertical", 3),
    Sketcher.Constraint("Horizontal", 4),
    Sketcher.Constraint("Coincident", 4, 1, 0, 2),
    Sketcher.Constraint("Vertical", 2, 2, 4, 2),
    Sketcher.Constraint("DistanceX", 2, 1, 2, 2, Q("15 mm")),
    Sketcher.Constraint("Angle", 1, Q("59 deg")),
    Sketcher.Constraint("DistanceY", 3, 2, 3, 1, Q("1.5 mm")),
    Sketcher.Constraint("DistanceY", -1, 1, 0, 2, Q("55 mm")),
    Sketcher.Constraint("DistanceX", 1, 2, -1, 1, Q("8 mm")),
])
groove13 = doc.addObject("PartDesign::Groove", "Groove012")
body.addObject(groove13)
groove13.Profile = sketch15
groove13.ReferenceAxis = (sketch15, ["Axis0"])
groove13.Angle = 360

sketch16 = doc.addObject("Sketcher::SketchObject", "Sketch015")
body.addObject(sketch16)
sketch16.AttachmentSupport = (doc.YZ_Plane, [""])
sketch16.MapMode = "FlatFace"
sketch16.AttachmentOffset = App.Placement(App.Vector(0, 0, -128), App.Rotation())
add_polygon(sketch16, [(7, 0), (-8.901291, 0), (-8, 1.5), (7, 1.5)])
sketch16.addConstraint([
    Sketcher.Constraint("Horizontal", 0),
    Sketcher.Constraint("Horizontal", 2),
    Sketcher.Constraint("Vertical", 3),
    Sketcher.Constraint("PointOnObject", 0, 2, -1),
    Sketcher.Constraint("DistanceX", 2, 1, 2, 2, Q("15 mm")),
    Sketcher.Constraint("Angle", 1, Q("59 deg")),
    Sketcher.Constraint("DistanceY", 3, 2, 3, 1, Q("1.5 mm")),
    Sketcher.Constraint("DistanceX", 1, 2, -1, 1, Q("8 mm")),
])
groove14 = doc.addObject("PartDesign::Groove", "Groove013")
body.addObject(groove14)
groove14.Profile = sketch16
groove14.ReferenceAxis = (sketch16, ["H_Axis"])
groove14.Angle = 360

sketch17 = doc.addObject("Sketcher::SketchObject", "Sketch016")
body.addObject(sketch17)
sketch17.AttachmentSupport = (doc.XZ_Plane, [""])
sketch17.MapMode = "FlatFace"
add_polygon(sketch17, [(112, 230), (-112, 230), (-112, 10)])
add_polygon(sketch17, [(112, 215.983565), (-97.72872, 10), (112, 10)])
add_polygon(sketch17, [(112, -10), (-97.72872, -10), (112, -215.983565)])
add_polygon(sketch17, [(-112, -10), (-112, -230), (112, -230)])
sketch17.addConstraint([
    Sketcher.Constraint("Horizontal", 0),
    Sketcher.Constraint("Vertical", 1),
    Sketcher.Constraint("Horizontal", 4),
    Sketcher.Constraint("Vertical", 5),
    Sketcher.Constraint("Horizontal", 6),
    Sketcher.Constraint("Vertical", 8),
    Sketcher.Constraint("Vertical", 9),
    Sketcher.Constraint("Horizontal", 10),
    Sketcher.Constraint("Symmetric", 1, 2, 8, 2, -1, 1),
    Sketcher.Constraint("Symmetric", 2, 2, 9, 2, -1, 1),
    Sketcher.Constraint("Symmetric", 4, 2, 11, 2, -1, 1),
    Sketcher.Constraint("Symmetric", 1, 2, 4, 2, -2),
    Sketcher.Constraint("Parallel", 2, 3),
    Sketcher.Constraint("Parallel", 7, 11),
    Sketcher.Constraint("Vertical", 3, 2, 6, 2),
    Sketcher.Constraint("Vertical", 8, 2, 10, 2),
    Sketcher.Constraint("DistanceX", 0, 2, 0, 1, Q("224 mm")),
    Sketcher.Constraint("DistanceY", 1, 2, 1, 1, Q("220 mm")),
    Sketcher.Constraint("DistanceY", -1, 1, 0, 2, Q("230 mm")),
    Sketcher.Constraint("DistanceX", 4, 1, 4, 2, Q("209.72872 mm")),
])
pocket2 = doc.addObject("PartDesign::Pocket", "Pocket001")
body.addObject(pocket2)
pocket2.Profile = sketch17
pocket2.Length = 6
doc.recompute()

fillet = doc.addObject("PartDesign::Fillet", "Fillet")
body.addObject(fillet)
fillet.Base = (pocket2, edges_at(pocket2, [
    (-112, 3, 10),
    (-112, 3, 230),
    (112, 3, 230),
    (112, 3, 10),
    (-97.729, 3, 10),
    (112, 3, 215.984),
    (112, 3, -10),
    (112, 3, -215.984),
    (-97.729, 3, -10),
    (-112, 3, -10),
    (112, 3, -230),
    (-112, 3, -230),
]))
fillet.Radius = 4

sketch18 = doc.addObject("Sketcher::SketchObject", "Sketch017")
body.addObject(sketch18)
sketch18.AttachmentSupport = (doc.XY_Plane, [""])
sketch18.MapMode = "FlatFace"
sketch18.AttachmentOffset = App.Placement(App.Vector(0, 0, 250), App.Rotation())
sketch18.addGeometry([
    Part.Circle(App.Vector(-129, 4, 0), App.Vector(0, 0, 1), 1.25),
    Part.Circle(App.Vector(-39, 4, 0), App.Vector(0, 0, 1), 1.25),
    Part.Circle(App.Vector(39, 4, 0), App.Vector(0, 0, 1), 1.25),
    Part.Circle(App.Vector(129, 4, 0), App.Vector(0, 0, 1), 1.25),
], False)
sketch18.addConstraint([
    Sketcher.Constraint("Equal", 0, 1),
    Sketcher.Constraint("Equal", 1, 2),
    Sketcher.Constraint("Equal", 2, 3),
    Sketcher.Constraint("Symmetric", 1, 3, 2, 3, -2),
    Sketcher.Constraint("Symmetric", 0, 3, 3, 3, -2),
    Sketcher.Constraint("Horizontal", 0, 3, 1, 3),
    Sketcher.Constraint("Diameter", 0, Q("2.5 mm")),
    Sketcher.Constraint("DistanceX", 0, 3, -1, 1, Q("129 mm")),
    Sketcher.Constraint("DistanceY", -1, 1, 0, 3, Q("4 mm")),
    Sketcher.Constraint("DistanceX", 1, 3, -1, 1, Q("39 mm")),
])
doc.recompute()
hole = doc.addObject("PartDesign::Hole", "Hole")
body.addObject(hole)
hole.Profile = sketch18
hole.ThreadType = "None"
hole.Diameter = 2.5
hole.DepthType = "Dimension"
hole.Depth = 7.5
hole.DrillPoint = "Angled"
hole.DrillPointAngle = 118

doc.recompute()
